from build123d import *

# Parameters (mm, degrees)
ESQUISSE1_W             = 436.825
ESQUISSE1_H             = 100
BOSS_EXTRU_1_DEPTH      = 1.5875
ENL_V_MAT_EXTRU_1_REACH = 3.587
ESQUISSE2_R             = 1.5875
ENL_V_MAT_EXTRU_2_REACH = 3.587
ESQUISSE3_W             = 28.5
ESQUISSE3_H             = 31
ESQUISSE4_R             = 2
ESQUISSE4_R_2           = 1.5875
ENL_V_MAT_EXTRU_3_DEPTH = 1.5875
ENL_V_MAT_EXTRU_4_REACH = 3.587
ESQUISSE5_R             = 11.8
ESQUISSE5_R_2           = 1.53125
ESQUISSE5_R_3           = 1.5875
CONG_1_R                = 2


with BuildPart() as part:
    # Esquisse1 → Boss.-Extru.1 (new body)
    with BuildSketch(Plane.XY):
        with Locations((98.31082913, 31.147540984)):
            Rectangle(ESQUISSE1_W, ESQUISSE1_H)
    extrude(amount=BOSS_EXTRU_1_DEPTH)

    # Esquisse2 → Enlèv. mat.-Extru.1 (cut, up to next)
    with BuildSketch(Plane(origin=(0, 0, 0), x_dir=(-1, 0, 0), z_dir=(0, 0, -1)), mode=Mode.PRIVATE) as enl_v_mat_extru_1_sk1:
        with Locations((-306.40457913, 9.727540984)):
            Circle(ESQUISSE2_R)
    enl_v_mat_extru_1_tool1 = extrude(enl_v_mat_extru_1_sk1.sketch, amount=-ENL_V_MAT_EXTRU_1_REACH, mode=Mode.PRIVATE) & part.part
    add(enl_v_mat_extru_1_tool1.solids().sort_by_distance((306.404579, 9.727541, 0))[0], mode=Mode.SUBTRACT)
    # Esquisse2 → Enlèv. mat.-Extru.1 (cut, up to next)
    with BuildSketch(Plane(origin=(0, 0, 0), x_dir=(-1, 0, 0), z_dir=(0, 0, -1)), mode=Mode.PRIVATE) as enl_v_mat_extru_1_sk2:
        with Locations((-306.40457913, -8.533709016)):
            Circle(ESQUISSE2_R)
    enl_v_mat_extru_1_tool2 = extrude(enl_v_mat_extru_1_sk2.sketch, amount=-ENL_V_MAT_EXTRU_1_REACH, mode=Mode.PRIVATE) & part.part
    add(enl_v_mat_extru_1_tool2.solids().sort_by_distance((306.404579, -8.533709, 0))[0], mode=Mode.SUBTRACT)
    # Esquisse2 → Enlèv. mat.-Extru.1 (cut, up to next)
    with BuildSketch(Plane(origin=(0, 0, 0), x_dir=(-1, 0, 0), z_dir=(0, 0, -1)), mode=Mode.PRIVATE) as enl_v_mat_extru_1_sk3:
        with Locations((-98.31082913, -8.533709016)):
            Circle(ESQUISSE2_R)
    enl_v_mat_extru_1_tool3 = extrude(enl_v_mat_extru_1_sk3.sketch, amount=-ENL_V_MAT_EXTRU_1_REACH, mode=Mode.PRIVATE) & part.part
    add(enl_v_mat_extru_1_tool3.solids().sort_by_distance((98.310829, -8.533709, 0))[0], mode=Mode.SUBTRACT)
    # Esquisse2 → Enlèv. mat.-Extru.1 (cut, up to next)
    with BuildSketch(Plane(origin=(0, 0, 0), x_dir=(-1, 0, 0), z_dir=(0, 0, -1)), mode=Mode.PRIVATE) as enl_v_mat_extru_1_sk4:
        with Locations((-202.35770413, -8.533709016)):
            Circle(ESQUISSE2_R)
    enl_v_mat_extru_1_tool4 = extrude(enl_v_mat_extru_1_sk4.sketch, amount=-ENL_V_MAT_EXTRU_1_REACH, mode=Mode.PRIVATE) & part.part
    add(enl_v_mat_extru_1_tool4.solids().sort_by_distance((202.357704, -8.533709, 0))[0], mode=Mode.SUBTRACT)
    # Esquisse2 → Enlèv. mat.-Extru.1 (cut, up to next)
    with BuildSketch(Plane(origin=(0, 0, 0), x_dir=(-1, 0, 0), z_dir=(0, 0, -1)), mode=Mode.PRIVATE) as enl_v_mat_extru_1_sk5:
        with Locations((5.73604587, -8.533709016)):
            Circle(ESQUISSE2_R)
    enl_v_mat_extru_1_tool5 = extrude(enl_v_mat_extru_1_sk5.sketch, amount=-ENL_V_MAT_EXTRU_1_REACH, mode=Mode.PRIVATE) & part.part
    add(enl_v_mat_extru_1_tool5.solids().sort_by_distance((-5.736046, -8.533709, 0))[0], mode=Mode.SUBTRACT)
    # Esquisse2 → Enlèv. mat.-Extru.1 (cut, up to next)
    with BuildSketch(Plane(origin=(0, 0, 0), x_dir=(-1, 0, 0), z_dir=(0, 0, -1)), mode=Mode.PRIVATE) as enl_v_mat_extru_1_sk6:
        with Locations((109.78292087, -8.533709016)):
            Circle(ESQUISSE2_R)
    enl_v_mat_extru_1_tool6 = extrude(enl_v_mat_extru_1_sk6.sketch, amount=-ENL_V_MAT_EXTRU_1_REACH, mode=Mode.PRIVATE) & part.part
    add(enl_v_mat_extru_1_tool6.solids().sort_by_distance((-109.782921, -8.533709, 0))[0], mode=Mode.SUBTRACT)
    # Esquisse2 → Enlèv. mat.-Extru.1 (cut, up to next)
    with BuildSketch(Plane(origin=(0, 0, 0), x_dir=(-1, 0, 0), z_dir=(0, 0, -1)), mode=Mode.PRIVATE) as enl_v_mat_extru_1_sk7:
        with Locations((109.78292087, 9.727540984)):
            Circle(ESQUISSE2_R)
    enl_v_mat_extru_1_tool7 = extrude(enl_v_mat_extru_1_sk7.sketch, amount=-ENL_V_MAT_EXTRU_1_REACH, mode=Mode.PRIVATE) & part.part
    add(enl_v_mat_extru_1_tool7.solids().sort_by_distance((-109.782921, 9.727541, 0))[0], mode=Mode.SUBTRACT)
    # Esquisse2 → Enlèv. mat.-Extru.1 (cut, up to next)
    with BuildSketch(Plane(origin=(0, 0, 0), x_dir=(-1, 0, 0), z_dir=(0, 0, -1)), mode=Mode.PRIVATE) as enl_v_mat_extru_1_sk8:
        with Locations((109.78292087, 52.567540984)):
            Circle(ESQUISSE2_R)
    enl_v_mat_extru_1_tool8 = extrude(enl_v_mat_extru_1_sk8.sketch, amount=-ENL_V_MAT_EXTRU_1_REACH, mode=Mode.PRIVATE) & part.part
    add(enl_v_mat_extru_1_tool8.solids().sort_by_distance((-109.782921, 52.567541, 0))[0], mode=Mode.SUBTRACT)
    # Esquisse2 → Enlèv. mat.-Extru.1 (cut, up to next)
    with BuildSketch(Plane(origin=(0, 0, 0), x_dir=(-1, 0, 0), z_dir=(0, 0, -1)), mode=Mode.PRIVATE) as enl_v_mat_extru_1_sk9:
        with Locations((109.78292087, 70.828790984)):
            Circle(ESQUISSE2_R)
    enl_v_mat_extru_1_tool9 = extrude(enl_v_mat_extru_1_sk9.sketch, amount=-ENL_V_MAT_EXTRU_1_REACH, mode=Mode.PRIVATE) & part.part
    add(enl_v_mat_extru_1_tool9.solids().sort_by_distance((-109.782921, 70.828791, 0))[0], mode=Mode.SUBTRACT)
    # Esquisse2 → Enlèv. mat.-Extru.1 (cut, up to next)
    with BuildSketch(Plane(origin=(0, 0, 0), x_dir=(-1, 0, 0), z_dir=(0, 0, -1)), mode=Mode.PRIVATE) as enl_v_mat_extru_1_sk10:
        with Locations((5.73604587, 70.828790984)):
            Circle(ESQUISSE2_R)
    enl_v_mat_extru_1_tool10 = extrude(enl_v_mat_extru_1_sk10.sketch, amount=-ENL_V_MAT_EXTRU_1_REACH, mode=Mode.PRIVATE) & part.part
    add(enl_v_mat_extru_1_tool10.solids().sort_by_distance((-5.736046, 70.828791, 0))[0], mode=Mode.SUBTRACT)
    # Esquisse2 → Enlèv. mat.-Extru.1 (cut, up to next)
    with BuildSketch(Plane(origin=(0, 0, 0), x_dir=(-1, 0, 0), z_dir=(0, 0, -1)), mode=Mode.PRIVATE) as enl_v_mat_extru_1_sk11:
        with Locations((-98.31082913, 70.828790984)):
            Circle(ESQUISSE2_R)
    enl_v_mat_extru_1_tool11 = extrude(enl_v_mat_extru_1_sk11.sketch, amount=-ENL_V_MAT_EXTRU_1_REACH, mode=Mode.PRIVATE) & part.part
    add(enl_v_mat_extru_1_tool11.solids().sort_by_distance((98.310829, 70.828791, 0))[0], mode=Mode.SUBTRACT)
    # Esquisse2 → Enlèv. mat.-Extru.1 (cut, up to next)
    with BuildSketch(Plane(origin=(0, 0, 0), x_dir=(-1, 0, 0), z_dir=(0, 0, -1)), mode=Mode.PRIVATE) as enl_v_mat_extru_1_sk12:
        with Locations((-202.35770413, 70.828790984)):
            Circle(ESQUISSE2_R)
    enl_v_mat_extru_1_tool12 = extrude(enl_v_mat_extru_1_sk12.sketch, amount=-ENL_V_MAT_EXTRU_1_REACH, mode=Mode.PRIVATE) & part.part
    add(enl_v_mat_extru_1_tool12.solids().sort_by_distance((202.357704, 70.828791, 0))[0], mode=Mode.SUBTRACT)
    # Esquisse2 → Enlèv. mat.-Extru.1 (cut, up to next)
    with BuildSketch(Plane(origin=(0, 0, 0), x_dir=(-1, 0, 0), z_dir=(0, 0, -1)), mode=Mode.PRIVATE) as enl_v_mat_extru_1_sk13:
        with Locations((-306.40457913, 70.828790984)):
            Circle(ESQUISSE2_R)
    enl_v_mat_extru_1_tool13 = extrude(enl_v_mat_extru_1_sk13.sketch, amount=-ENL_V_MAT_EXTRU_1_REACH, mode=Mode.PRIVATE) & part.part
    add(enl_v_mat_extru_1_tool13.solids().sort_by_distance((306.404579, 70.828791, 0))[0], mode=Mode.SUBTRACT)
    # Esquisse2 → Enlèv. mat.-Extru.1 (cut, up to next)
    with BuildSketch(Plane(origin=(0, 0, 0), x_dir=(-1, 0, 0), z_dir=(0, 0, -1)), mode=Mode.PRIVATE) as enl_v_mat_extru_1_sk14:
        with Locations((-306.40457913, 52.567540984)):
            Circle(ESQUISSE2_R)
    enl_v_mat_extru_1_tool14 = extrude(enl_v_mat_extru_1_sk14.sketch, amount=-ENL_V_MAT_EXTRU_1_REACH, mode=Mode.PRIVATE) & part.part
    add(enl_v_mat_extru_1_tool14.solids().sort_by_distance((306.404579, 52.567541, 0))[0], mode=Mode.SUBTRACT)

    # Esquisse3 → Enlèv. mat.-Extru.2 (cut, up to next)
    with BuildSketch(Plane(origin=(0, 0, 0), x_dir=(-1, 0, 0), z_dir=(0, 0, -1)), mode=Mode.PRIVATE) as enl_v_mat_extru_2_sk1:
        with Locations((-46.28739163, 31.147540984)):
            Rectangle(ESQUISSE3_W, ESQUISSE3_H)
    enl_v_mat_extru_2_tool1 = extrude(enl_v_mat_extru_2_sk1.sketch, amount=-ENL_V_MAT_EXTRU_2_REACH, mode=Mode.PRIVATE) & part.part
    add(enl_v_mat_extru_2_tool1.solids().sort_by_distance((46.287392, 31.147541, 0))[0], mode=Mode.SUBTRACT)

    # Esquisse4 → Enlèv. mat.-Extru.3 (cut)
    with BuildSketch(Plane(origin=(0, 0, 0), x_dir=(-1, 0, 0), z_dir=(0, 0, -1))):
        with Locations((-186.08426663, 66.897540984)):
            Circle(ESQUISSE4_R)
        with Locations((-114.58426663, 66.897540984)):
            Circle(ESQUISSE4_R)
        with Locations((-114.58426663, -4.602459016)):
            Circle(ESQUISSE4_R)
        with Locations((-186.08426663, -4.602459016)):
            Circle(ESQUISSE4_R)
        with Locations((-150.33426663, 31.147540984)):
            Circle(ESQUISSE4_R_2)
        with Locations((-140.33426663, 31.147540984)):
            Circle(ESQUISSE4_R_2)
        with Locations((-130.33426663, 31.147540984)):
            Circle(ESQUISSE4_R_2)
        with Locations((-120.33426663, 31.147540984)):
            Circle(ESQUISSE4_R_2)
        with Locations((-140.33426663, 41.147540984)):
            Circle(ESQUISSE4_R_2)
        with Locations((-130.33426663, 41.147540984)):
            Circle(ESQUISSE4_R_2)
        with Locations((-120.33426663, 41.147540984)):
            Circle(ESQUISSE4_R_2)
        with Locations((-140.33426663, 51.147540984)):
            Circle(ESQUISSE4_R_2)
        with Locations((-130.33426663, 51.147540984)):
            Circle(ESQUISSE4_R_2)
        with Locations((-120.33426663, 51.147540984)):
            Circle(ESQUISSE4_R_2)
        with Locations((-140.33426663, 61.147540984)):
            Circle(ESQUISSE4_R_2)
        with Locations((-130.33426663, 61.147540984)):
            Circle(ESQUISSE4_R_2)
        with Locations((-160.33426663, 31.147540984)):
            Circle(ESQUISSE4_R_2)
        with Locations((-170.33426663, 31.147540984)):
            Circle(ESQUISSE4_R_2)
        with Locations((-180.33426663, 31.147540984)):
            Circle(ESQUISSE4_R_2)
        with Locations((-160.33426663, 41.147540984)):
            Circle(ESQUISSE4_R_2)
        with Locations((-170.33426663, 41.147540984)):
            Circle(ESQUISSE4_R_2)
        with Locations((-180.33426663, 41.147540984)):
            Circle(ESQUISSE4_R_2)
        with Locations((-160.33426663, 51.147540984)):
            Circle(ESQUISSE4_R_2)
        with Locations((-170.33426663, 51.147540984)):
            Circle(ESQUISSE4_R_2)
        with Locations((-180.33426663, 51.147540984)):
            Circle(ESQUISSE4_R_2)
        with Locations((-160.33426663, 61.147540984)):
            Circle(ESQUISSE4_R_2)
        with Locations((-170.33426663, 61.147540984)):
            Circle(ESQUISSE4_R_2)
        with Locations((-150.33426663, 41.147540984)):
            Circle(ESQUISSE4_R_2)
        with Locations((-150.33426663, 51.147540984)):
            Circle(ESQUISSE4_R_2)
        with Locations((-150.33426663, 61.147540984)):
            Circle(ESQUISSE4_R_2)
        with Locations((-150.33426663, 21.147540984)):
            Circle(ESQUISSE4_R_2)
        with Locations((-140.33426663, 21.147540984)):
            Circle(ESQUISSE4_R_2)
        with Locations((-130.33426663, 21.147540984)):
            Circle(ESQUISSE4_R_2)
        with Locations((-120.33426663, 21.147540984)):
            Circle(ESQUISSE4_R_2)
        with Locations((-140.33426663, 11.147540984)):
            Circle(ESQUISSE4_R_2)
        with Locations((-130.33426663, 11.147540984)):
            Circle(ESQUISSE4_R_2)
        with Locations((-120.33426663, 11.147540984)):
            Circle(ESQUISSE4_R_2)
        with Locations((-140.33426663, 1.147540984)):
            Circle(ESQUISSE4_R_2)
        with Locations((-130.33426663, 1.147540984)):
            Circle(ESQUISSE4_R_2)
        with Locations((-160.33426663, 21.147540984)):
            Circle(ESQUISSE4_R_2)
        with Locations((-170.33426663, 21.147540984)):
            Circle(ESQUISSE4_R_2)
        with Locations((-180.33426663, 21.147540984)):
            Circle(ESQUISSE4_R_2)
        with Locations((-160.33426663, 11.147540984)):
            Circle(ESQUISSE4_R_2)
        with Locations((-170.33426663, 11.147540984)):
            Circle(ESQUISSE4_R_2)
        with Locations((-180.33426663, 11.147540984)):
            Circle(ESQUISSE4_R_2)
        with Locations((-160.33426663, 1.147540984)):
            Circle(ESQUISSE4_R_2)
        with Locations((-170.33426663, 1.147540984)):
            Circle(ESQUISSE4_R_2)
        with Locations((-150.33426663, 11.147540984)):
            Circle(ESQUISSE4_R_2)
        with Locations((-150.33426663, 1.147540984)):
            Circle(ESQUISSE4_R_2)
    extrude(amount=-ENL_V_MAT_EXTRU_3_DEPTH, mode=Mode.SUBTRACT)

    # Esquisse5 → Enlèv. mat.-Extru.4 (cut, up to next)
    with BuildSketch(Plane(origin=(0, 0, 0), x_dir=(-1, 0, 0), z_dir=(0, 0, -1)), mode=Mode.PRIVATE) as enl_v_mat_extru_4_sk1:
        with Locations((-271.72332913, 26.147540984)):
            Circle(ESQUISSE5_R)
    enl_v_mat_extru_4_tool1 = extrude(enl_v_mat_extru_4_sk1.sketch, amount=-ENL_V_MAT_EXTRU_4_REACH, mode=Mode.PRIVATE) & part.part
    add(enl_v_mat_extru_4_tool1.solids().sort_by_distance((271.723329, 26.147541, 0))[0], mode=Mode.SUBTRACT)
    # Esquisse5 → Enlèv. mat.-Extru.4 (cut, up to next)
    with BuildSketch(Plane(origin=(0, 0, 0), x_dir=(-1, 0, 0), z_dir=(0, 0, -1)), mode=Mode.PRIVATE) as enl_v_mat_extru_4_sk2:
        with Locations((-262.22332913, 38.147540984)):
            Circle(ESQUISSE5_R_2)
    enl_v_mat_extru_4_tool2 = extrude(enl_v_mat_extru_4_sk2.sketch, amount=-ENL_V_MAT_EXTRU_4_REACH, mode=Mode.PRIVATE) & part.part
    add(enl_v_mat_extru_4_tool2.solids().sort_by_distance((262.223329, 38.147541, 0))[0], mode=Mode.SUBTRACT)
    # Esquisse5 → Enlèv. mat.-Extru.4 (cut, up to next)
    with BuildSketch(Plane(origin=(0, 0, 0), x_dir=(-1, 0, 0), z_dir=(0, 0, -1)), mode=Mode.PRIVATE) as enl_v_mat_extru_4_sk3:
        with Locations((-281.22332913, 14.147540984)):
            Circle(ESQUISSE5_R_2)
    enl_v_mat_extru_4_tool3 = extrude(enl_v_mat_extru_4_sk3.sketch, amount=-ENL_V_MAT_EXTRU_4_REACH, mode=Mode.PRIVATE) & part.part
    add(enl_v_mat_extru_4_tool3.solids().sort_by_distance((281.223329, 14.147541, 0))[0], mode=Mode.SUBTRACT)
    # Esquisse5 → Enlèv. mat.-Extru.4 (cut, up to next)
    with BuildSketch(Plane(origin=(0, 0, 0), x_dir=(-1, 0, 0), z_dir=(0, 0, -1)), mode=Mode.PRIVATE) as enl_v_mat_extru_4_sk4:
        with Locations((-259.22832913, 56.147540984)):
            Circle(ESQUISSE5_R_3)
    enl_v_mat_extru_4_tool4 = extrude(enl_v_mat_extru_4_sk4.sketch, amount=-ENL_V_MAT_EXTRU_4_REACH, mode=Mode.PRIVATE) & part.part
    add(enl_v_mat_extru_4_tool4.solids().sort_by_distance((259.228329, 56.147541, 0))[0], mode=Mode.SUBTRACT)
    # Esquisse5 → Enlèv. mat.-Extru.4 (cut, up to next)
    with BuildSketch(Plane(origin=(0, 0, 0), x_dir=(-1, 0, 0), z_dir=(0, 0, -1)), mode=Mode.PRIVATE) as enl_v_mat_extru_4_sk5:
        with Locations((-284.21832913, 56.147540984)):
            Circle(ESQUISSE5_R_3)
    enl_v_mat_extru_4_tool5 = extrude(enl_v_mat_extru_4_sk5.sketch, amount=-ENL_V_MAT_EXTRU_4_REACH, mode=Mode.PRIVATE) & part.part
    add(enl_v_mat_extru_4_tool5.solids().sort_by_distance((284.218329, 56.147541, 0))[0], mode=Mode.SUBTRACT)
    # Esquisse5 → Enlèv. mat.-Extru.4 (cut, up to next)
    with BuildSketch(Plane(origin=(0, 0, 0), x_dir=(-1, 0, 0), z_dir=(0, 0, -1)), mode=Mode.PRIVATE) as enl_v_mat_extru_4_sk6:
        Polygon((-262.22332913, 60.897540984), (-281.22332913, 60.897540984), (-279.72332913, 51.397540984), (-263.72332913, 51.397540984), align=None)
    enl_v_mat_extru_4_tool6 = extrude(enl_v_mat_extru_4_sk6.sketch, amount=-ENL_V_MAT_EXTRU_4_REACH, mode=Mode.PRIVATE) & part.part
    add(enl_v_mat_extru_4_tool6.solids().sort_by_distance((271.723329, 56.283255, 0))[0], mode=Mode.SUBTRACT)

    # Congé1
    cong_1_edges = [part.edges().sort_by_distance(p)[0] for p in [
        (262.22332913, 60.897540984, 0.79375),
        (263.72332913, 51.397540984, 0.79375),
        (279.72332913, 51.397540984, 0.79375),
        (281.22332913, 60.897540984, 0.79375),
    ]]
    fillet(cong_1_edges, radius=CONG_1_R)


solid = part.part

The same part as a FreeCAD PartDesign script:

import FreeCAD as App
import Part
import Sketcher
from FreeCAD import Vector


def edges_at(feature, points):
    """Names of the edges that pass closest to the given points."""
    edges = feature.Shape.Edges
    near = lambda p: min(range(len(edges)), key=lambda i: edges[i].distToShape(Part.Vertex(*p))[0])
    return sorted({f"Edge{near(p) + 1}" for p in points})

doc = App.newDocument("Part")
body = doc.addObject("PartDesign::Body", "Body")

sketch1 = body.newObject("Sketcher::SketchObject", "Sketch")
sketch1.AttachmentSupport = (doc.getObject("XY_Plane"), [""])
sketch1.MapMode = "FlatFace"
sketch1.addGeometry(Part.LineSegment(Vector(-120, 81, 0), Vector(-120, -19, 0)), False)
sketch1.addGeometry(Part.LineSegment(Vector(-120, -19, 0), Vector(317, -19, 0)), False)
sketch1.addGeometry(Part.LineSegment(Vector(317, -19, 0), Vector(317, 81, 0)), False)
sketch1.addGeometry(Part.LineSegment(Vector(317, 81, 0), Vector(-120, 81, 0)), False)
sketch1.addConstraint(Sketcher.Constraint("Coincident", 0, 2, 1, 1))
sketch1.addConstraint(Sketcher.Constraint("Coincident", 1, 2, 2, 1))
sketch1.addConstraint(Sketcher.Constraint("Coincident", 2, 2, 3, 1))
sketch1.addConstraint(Sketcher.Constraint("Coincident", 3, 2, 0, 1))
sketch1.addConstraint(Sketcher.Constraint("Vertical", 0))
sketch1.addConstraint(Sketcher.Constraint("Horizontal", 1))
sketch1.addConstraint(Sketcher.Constraint("Vertical", 2))
sketch1.addConstraint(Sketcher.Constraint("Horizontal", 3))
sketch1.addConstraint(Sketcher.Constraint("DistanceY", 0, 2, 0, 1, 100.0))
sketch1.addConstraint(Sketcher.Constraint("DistanceX", 1, 1, 1, 2, 436.825))
sketch1.addConstraint(Sketcher.Constraint("DistanceX", 0, 2, -1, 1, 120.101671))
sketch1.addConstraint(Sketcher.Constraint("DistanceY", 0, 2, -1, 1, 18.852459))
pad1 = body.newObject("PartDesign::Pad", "Pad")
pad1.Profile = sketch1
pad1.Length = 1.5875

sketch2 = body.newObject("Sketcher::SketchObject", "Sketch001")
sketch2.AttachmentSupport = (doc.getObject("XY_Plane"), [""])
sketch2.MapMode = "FlatFace"
sketch2.addGeometry(Part.Circle(Vector(306.4, 9.7, 0), Vector(0, 0, 1), 1.6), False)
sketch2.addConstraint(Sketcher.Constraint("Diameter", 0, 3.175))
sketch2.addConstraint(Sketcher.Constraint("DistanceX", -1, 1, 0, 3, 306.404579))
sketch2.addConstraint(Sketcher.Constraint("DistanceY", -1, 1, 0, 3, 9.727541))
pocket1 = body.newObject("PartDesign::Pocket", "Pocket")
pocket1.Profile = sketch2
pocket1.Type = "UpToFirst"
pocket1.Reversed = True

sketch3 = body.newObject("Sketcher::SketchObject", "Sketch002")
sketch3.AttachmentSupport = (doc.getObject("XY_Plane"), [""])
sketch3.MapMode = "FlatFace"
sketch3.addGeometry(Part.Circle(Vector(306.4, -8.5, 0), Vector(0, 0, 1), 1.6), False)
sketch3.addConstraint(Sketcher.Constraint("Diameter", 0, 3.175))
sketch3.addConstraint(Sketcher.Constraint("DistanceX", -1, 1, 0, 3, 306.404579))
sketch3.addConstraint(Sketcher.Constraint("DistanceY", 0, 3, -1, 1, 8.533709))
pocket2 = body.newObject("PartDesign::Pocket", "Pocket001")
pocket2.Profile = sketch3
pocket2.Type = "UpToFirst"
pocket2.Reversed = True

sketch4 = body.newObject("Sketcher::SketchObject", "Sketch003")
sketch4.AttachmentSupport = (doc.getObject("XY_Plane"), [""])
sketch4.MapMode = "FlatFace"
sketch4.addGeometry(Part.Circle(Vector(98.3, -8.5, 0), Vector(0, 0, 1), 1.6), False)
sketch4.addConstraint(Sketcher.Constraint("Diameter", 0, 3.175))
sketch4.addConstraint(Sketcher.Constraint("DistanceX", -1, 1, 0, 3, 98.310829))
sketch4.addConstraint(Sketcher.Constraint("DistanceY", 0, 3, -1, 1, 8.533709))
pocket3 = body.newObject("PartDesign::Pocket", "Pocket002")
pocket3.Profile = sketch4
pocket3.Type = "UpToFirst"
pocket3.Reversed = True

sketch5 = body.newObject("Sketcher::SketchObject", "Sketch004")
sketch5.AttachmentSupport = (doc.getObject("XY_Plane"), [""])
sketch5.MapMode = "FlatFace"
sketch5.addGeometry(Part.Circle(Vector(202.4, -8.5, 0), Vector(0, 0, 1), 1.6), False)
sketch5.addConstraint(Sketcher.Constraint("Diameter", 0, 3.175))
sketch5.addConstraint(Sketcher.Constraint("DistanceY", 0, 3, -1, 1, 8.533709))
sketch5.addConstraint(Sketcher.Constraint("DistanceX", -1, 1, 0, 3, 202.357704))
pocket4 = body.newObject("PartDesign::Pocket", "Pocket003")
pocket4.Profile = sketch5
pocket4.Type = "UpToFirst"
pocket4.Reversed = True

sketch6 = body.newObject("Sketcher::SketchObject", "Sketch005")
sketch6.AttachmentSupport = (doc.getObject("XY_Plane"), [""])
sketch6.MapMode = "FlatFace"
sketch6.addGeometry(Part.Circle(Vector(-5.7, -8.5, 0), Vector(0, 0, 1), 1.6), False)
sketch6.addConstraint(Sketcher.Constraint("Diameter", 0, 3.175))
sketch6.addConstraint(Sketcher.Constraint("DistanceY", 0, 3, -1, 1, 8.533709))
sketch6.addConstraint(Sketcher.Constraint("DistanceX", 0, 3, -1, 1, 5.736046))
pocket5 = body.newObject("PartDesign::Pocket", "Pocket004")
pocket5.Profile = sketch6
pocket5.Type = "UpToFirst"
pocket5.Reversed = True

sketch7 = body.newObject("Sketcher::SketchObject", "Sketch006")
sketch7.AttachmentSupport = (doc.getObject("XY_Plane"), [""])
sketch7.MapMode = "FlatFace"
sketch7.addGeometry(Part.Circle(Vector(-109.8, -8.5, 0), Vector(0, 0, 1), 1.6), False)
sketch7.addConstraint(Sketcher.Constraint("Diameter", 0, 3.175))
sketch7.addConstraint(Sketcher.Constraint("DistanceX", 0, 3, -1, 1, 109.782921))
sketch7.addConstraint(Sketcher.Constraint("DistanceY", 0, 3, -1, 1, 8.533709))
pocket6 = body.newObject("PartDesign::Pocket", "Pocket005")
pocket6.Profile = sketch7
pocket6.Type = "UpToFirst"
pocket6.Reversed = True

sketch8 = body.newObject("Sketcher::SketchObject", "Sketch007")
sketch8.AttachmentSupport = (doc.getObject("XY_Plane"), [""])
sketch8.MapMode = "FlatFace"
sketch8.addGeometry(Part.Circle(Vector(-109.8, 9.7, 0), Vector(0, 0, 1), 1.6), False)
sketch8.addConstraint(Sketcher.Constraint("Diameter", 0, 3.175))
sketch8.addConstraint(Sketcher.Constraint("DistanceX", 0, 3, -1, 1, 109.782921))
sketch8.addConstraint(Sketcher.Constraint("DistanceY", -1, 1, 0, 3, 9.727541))
pocket7 = body.newObject("PartDesign::Pocket", "Pocket006")
pocket7.Profile = sketch8
pocket7.Type = "UpToFirst"
pocket7.Reversed = True

sketch9 = body.newObject("Sketcher::SketchObject", "Sketch008")
sketch9.AttachmentSupport = (doc.getObject("XY_Plane"), [""])
sketch9.MapMode = "FlatFace"
sketch9.addGeometry(Part.Circle(Vector(-109.8, 52.6, 0), Vector(0, 0, 1), 1.6), False)
sketch9.addConstraint(Sketcher.Constraint("Diameter", 0, 3.175))
sketch9.addConstraint(Sketcher.Constraint("DistanceX", 0, 3, -1, 1, 109.782921))
sketch9.addConstraint(Sketcher.Constraint("DistanceY", -1, 1, 0, 3, 52.567541))
pocket8 = body.newObject("PartDesign::Pocket", "Pocket007")
pocket8.Profile = sketch9
pocket8.Type = "UpToFirst"
pocket8.Reversed = True

sketch10 = body.newObject("Sketcher::SketchObject", "Sketch009")
sketch10.AttachmentSupport = (doc.getObject("XY_Plane"), [""])
sketch10.MapMode = "FlatFace"
sketch10.addGeometry(Part.Circle(Vector(-109.8, 70.8, 0), Vector(0, 0, 1), 1.6), False)
sketch10.addConstraint(Sketcher.Constraint("Diameter", 0, 3.175))
sketch10.addConstraint(Sketcher.Constraint("DistanceX", 0, 3, -1, 1, 109.782921))
sketch10.addConstraint(Sketcher.Constraint("DistanceY", -1, 1, 0, 3, 70.828791))
pocket9 = body.newObject("PartDesign::Pocket", "Pocket008")
pocket9.Profile = sketch10
pocket9.Type = "UpToFirst"
pocket9.Reversed = True

sketch11 = body.newObject("Sketcher::SketchObject", "Sketch010")
sketch11.AttachmentSupport = (doc.getObject("XY_Plane"), [""])
sketch11.MapMode = "FlatFace"
sketch11.addGeometry(Part.Circle(Vector(-5.7, 70.8, 0), Vector(0, 0, 1), 1.6), False)
sketch11.addConstraint(Sketcher.Constraint("Diameter", 0, 3.175))
sketch11.addConstraint(Sketcher.Constraint("DistanceY", -1, 1, 0, 3, 70.828791))
sketch11.addConstraint(Sketcher.Constraint("DistanceX", 0, 3, -1, 1, 5.736046))
pocket10 = body.newObject("PartDesign::Pocket", "Pocket009")
pocket10.Profile = sketch11
pocket10.Type = "UpToFirst"
pocket10.Reversed = True

sketch12 = body.newObject("Sketcher::SketchObject", "Sketch011")
sketch12.AttachmentSupport = (doc.getObject("XY_Plane"), [""])
sketch12.MapMode = "FlatFace"
sketch12.addGeometry(Part.Circle(Vector(98.3, 70.8, 0), Vector(0, 0, 1), 1.6), False)
sketch12.addConstraint(Sketcher.Constraint("Diameter", 0, 3.175))
sketch12.addConstraint(Sketcher.Constraint("DistanceX", -1, 1, 0, 3, 98.310829))
sketch12.addConstraint(Sketcher.Constraint("DistanceY", -1, 1, 0, 3, 70.828791))
pocket11 = body.newObject("PartDesign::Pocket", "Pocket010")
pocket11.Profile = sketch12
pocket11.Type = "UpToFirst"
pocket11.Reversed = True

sketch13 = body.newObject("Sketcher::SketchObject", "Sketch012")
sketch13.AttachmentSupport = (doc.getObject("XY_Plane"), [""])
sketch13.MapMode = "FlatFace"
sketch13.addGeometry(Part.Circle(Vector(202.4, 70.8, 0), Vector(0, 0, 1), 1.6), False)
sketch13.addConstraint(Sketcher.Constraint("Diameter", 0, 3.175))
sketch13.addConstraint(Sketcher.Constraint("DistanceY", -1, 1, 0, 3, 70.828791))
sketch13.addConstraint(Sketcher.Constraint("DistanceX", -1, 1, 0, 3, 202.357704))
pocket12 = body.newObject("PartDesign::Pocket", "Pocket011")
pocket12.Profile = sketch13
pocket12.Type = "UpToFirst"
pocket12.Reversed = True

sketch14 = body.newObject("Sketcher::SketchObject", "Sketch013")
sketch14.AttachmentSupport = (doc.getObject("XY_Plane"), [""])
sketch14.MapMode = "FlatFace"
sketch14.addGeometry(Part.Circle(Vector(306.4, 70.8, 0), Vector(0, 0, 1), 1.6), False)
sketch14.addConstraint(Sketcher.Constraint("Diameter", 0, 3.175))
sketch14.addConstraint(Sketcher.Constraint("DistanceX", -1, 1, 0, 3, 306.404579))
sketch14.addConstraint(Sketcher.Constraint("DistanceY", -1, 1, 0, 3, 70.828791))
pocket13 = body.newObject("PartDesign::Pocket", "Pocket012")
pocket13.Profile = sketch14
pocket13.Type = "UpToFirst"
pocket13.Reversed = True

sketch15 = body.newObject("Sketcher::SketchObject", "Sketch014")
sketch15.AttachmentSupport = (doc.getObject("XY_Plane"), [""])
sketch15.MapMode = "FlatFace"
sketch15.addGeometry(Part.Circle(Vector(306.4, 52.6, 0), Vector(0, 0, 1), 1.6), False)
sketch15.addConstraint(Sketcher.Constraint("Diameter", 0, 3.175))
sketch15.addConstraint(Sketcher.Constraint("DistanceX", -1, 1, 0, 3, 306.404579))
sketch15.addConstraint(Sketcher.Constraint("DistanceY", -1, 1, 0, 3, 52.567541))
pocket14 = body.newObject("PartDesign::Pocket", "Pocket013")
pocket14.Profile = sketch15
pocket14.Type = "UpToFirst"
pocket14.Reversed = True

sketch16 = body.newObject("Sketcher::SketchObject", "Sketch015")
sketch16.AttachmentSupport = (doc.getObject("XY_Plane"), [""])
sketch16.MapMode = "FlatFace"
sketch16.addGeometry(Part.LineSegment(Vector(61, 47, 0), Vector(61, 16, 0)), False)
sketch16.addGeometry(Part.LineSegment(Vector(61, 16, 0), Vector(32, 16, 0)), False)
sketch16.addGeometry(Part.LineSegment(Vector(32, 16, 0), Vector(32, 47, 0)), False)
sketch16.addGeometry(Part.LineSegment(Vector(32, 47, 0), Vector(61, 47, 0)), False)
sketch16.addConstraint(Sketcher.Constraint("Coincident", 0, 2, 1, 1))
sketch16.addConstraint(Sketcher.Constraint("Coincident", 1, 2, 2, 1))
sketch16.addConstraint(Sketcher.Constraint("Coincident", 2, 2, 3, 1))
sketch16.addConstraint(Sketcher.Constraint("Coincident", 3, 2, 0, 1))
sketch16.addConstraint(Sketcher.Constraint("Vertical", 0))
sketch16.addConstraint(Sketcher.Constraint("Horizontal", 1))
sketch16.addConstraint(Sketcher.Constraint("Vertical", 2))
sketch16.addConstraint(Sketcher.Constraint("Horizontal", 3))
sketch16.addConstraint(Sketcher.Constraint("DistanceY", 0, 2, 0, 1, 31.0))
sketch16.addConstraint(Sketcher.Constraint("DistanceX", 1, 2, 1, 1, 28.5))
sketch16.addConstraint(Sketcher.Constraint("DistanceX", -1, 1, 0, 2, 60.537392))
sketch16.addConstraint(Sketcher.Constraint("DistanceY", -1, 1, 0, 2, 15.647541))
pocket15 = body.newObject("PartDesign::Pocket", "Pocket014")
pocket15.Profile = sketch16
pocket15.Type = "UpToFirst"
pocket15.Reversed = True

sketch17 = body.newObject("Sketcher::SketchObject", "Sketch016")
sketch17.AttachmentSupport = (doc.getObject("XY_Plane"), [""])
sketch17.MapMode = "FlatFace"
sketch17.addGeometry(Part.Circle(Vector(186.1, 66.9, 0), Vector(0, 0, 1), 2), False)
sketch17.addGeometry(Part.Circle(Vector(114.6, 66.9, 0), Vector(0, 0, 1), 2), False)
sketch17.addGeometry(Part.Circle(Vector(114.6, -4.6, 0), Vector(0, 0, 1), 2), False)
sketch17.addGeometry(Part.Circle(Vector(186.1, -4.6, 0), Vector(0, 0, 1), 2), False)
sketch17.addGeometry(Part.Circle(Vector(150.3, 31.1, 0), Vector(0, 0, 1), 1.6), False)
sketch17.addGeometry(Part.Circle(Vector(140.3, 31.1, 0), Vector(0, 0, 1), 1.6), False)
sketch17.addGeometry(Part.Circle(Vector(130.3, 31.1, 0), Vector(0, 0, 1), 1.6), False)
sketch17.addGeometry(Part.Circle(Vector(120.3, 31.1, 0), Vector(0, 0, 1), 1.6), False)
sketch17.addGeometry(Part.Circle(Vector(140.3, 41.1, 0), Vector(0, 0, 1), 1.6), False)
sketch17.addGeometry(Part.Circle(Vector(130.3, 41.1, 0), Vector(0, 0, 1), 1.6), False)
sketch17.addGeometry(Part.Circle(Vector(120.3, 41.1, 0), Vector(0, 0, 1), 1.6), False)
sketch17.addGeometry(Part.Circle(Vector(140.3, 51.1, 0), Vector(0, 0, 1), 1.6), False)
sketch17.addGeometry(Part.Circle(Vector(130.3, 51.1, 0), Vector(0, 0, 1), 1.6), False)
sketch17.addGeometry(Part.Circle(Vector(120.3, 51.1, 0), Vector(0, 0, 1), 1.6), False)
sketch17.addGeometry(Part.Circle(Vector(140.3, 61.1, 0), Vector(0, 0, 1), 1.6), False)
sketch17.addGeometry(Part.Circle(Vector(130.3, 61.1, 0), Vector(0, 0, 1), 1.6), False)
sketch17.addGeometry(Part.Circle(Vector(160.3, 31.1, 0), Vector(0, 0, 1), 1.6), False)
sketch17.addGeometry(Part.Circle(Vector(170.3, 31.1, 0), Vector(0, 0, 1), 1.6), False)
sketch17.addGeometry(Part.Circle(Vector(180.3, 31.1, 0), Vector(0, 0, 1), 1.6), False)
sketch17.addGeometry(Part.Circle(Vector(160.3, 41.1, 0), Vector(0, 0, 1), 1.6), False)
sketch17.addGeometry(Part.Circle(Vector(170.3, 41.1, 0), Vector(0, 0, 1), 1.6), False)
sketch17.addGeometry(Part.Circle(Vector(180.3, 41.1, 0), Vector(0, 0, 1), 1.6), False)
sketch17.addGeometry(Part.Circle(Vector(160.3, 51.1, 0), Vector(0, 0, 1), 1.6), False)
sketch17.addGeometry(Part.Circle(Vector(170.3, 51.1, 0), Vector(0, 0, 1), 1.6), False)
sketch17.addGeometry(Part.Circle(Vector(180.3, 51.1, 0), Vector(0, 0, 1), 1.6), False)
sketch17.addGeometry(Part.Circle(Vector(160.3, 61.1, 0), Vector(0, 0, 1), 1.6), False)
sketch17.addGeometry(Part.Circle(Vector(170.3, 61.1, 0), Vector(0, 0, 1), 1.6), False)
sketch17.addGeometry(Part.Circle(Vector(150.3, 41.1, 0), Vector(0, 0, 1), 1.6), False)
sketch17.addGeometry(Part.Circle(Vector(150.3, 51.1, 0), Vector(0, 0, 1), 1.6), False)
sketch17.addGeometry(Part.Circle(Vector(150.3, 61.1, 0), Vector(0, 0, 1), 1.6), False)
sketch17.addGeometry(Part.Circle(Vector(150.3, 21.1, 0), Vector(0, 0, 1), 1.6), False)
sketch17.addGeometry(Part.Circle(Vector(140.3, 21.1, 0), Vector(0, 0, 1), 1.6), False)
sketch17.addGeometry(Part.Circle(Vector(130.3, 21.1, 0), Vector(0, 0, 1), 1.6), False)
sketch17.addGeometry(Part.Circle(Vector(120.3, 21.1, 0), Vector(0, 0, 1), 1.6), False)
sketch17.addGeometry(Part.Circle(Vector(140.3, 11.1, 0), Vector(0, 0, 1), 1.6), False)
sketch17.addGeometry(Part.Circle(Vector(130.3, 11.1, 0), Vector(0, 0, 1), 1.6), False)
sketch17.addGeometry(Part.Circle(Vector(120.3, 11.1, 0), Vector(0, 0, 1), 1.6), False)
sketch17.addGeometry(Part.Circle(Vector(140.3, 1.1, 0), Vector(0, 0, 1), 1.6), False)
sketch17.addGeometry(Part.Circle(Vector(130.3, 1.1, 0), Vector(0, 0, 1), 1.6), False)
sketch17.addGeometry(Part.Circle(Vector(160.3, 21.1, 0), Vector(0, 0, 1), 1.6), False)
sketch17.addGeometry(Part.Circle(Vector(170.3, 21.1, 0), Vector(0, 0, 1), 1.6), False)
sketch17.addGeometry(Part.Circle(Vector(180.3, 21.1, 0), Vector(0, 0, 1), 1.6), False)
sketch17.addGeometry(Part.Circle(Vector(160.3, 11.1, 0), Vector(0, 0, 1), 1.6), False)
sketch17.addGeometry(Part.Circle(Vector(170.3, 11.1, 0), Vector(0, 0, 1), 1.6), False)
sketch17.addGeometry(Part.Circle(Vector(180.3, 11.1, 0), Vector(0, 0, 1), 1.6), False)
sketch17.addGeometry(Part.Circle(Vector(160.3, 1.1, 0), Vector(0, 0, 1), 1.6), False)
sketch17.addGeometry(Part.Circle(Vector(170.3, 1.1, 0), Vector(0, 0, 1), 1.6), False)
sketch17.addGeometry(Part.Circle(Vector(150.3, 11.1, 0), Vector(0, 0, 1), 1.6), False)
sketch17.addGeometry(Part.Circle(Vector(150.3, 1.1, 0), Vector(0, 0, 1), 1.6), False)
sketch17.addConstraint(Sketcher.Constraint("Equal", 0, 1))
sketch17.addConstraint(Sketcher.Constraint("Equal", 1, 2))
sketch17.addConstraint(Sketcher.Constraint("Equal", 2, 3))
sketch17.addConstraint(Sketcher.Constraint("Equal", 4, 5))
sketch17.addConstraint(Sketcher.Constraint("Equal", 5, 6))
sketch17.addConstraint(Sketcher.Constraint("Equal", 6, 7))
sketch17.addConstraint(Sketcher.Constraint("Equal", 7, 8))
sketch17.addConstraint(Sketcher.Constraint("Equal", 8, 9))
sketch17.addConstraint(Sketcher.Constraint("Equal", 9, 10))
sketch17.addConstraint(Sketcher.Constraint("Equal", 10, 11))
sketch17.addConstraint(Sketcher.Constraint("Equal", 11, 12))
sketch17.addConstraint(Sketcher.Constraint("Equal", 12, 13))
sketch17.addConstraint(Sketcher.Constraint("Equal", 13, 14))
sketch17.addConstraint(Sketcher.Constraint("Equal", 14, 15))
sketch17.addConstraint(Sketcher.Constraint("Equal", 15, 16))
sketch17.addConstraint(Sketcher.Constraint("Equal", 16, 17))
sketch17.addConstraint(Sketcher.Constraint("Equal", 17, 18))
sketch17.addConstraint(Sketcher.Constraint("Equal", 18, 19))
sketch17.addConstraint(Sketcher.Constraint("Equal", 19, 20))
sketch17.addConstraint(Sketcher.Constraint("Equal", 20, 21))
sketch17.addConstraint(Sketcher.Constraint("Equal", 21, 22))
sketch17.addConstraint(Sketcher.Constraint("Equal", 22, 23))
sketch17.addConstraint(Sketcher.Constraint("Equal", 23, 24))
sketch17.addConstraint(Sketcher.Constraint("Equal", 24, 25))
sketch17.addConstraint(Sketcher.Constraint("Equal", 25, 26))
sketch17.addConstraint(Sketcher.Constraint("Equal", 26, 27))
sketch17.addConstraint(Sketcher.Constraint("Equal", 27, 28))
sketch17.addConstraint(Sketcher.Constraint("Equal", 28, 29))
sketch17.addConstraint(Sketcher.Constraint("Equal", 29, 30))
sketch17.addConstraint(Sketcher.Constraint("Equal", 30, 31))
sketch17.addConstraint(Sketcher.Constraint("Equal", 31, 32))
sketch17.addConstraint(Sketcher.Constraint("Equal", 32, 33))
sketch17.addConstraint(Sketcher.Constraint("Equal", 33, 34))
sketch17.addConstraint(Sketcher.Constraint("Equal", 34, 35))
sketch17.addConstraint(Sketcher.Constraint("Equal", 35, 36))
sketch17.addConstraint(Sketcher.Constraint("Equal", 36, 37))
sketch17.addConstraint(Sketcher.Constraint("Equal", 37, 38))
sketch17.addConstraint(Sketcher.Constraint("Equal", 38, 39))
sketch17.addConstraint(Sketcher.Constraint("Equal", 39, 40))
sketch17.addConstraint(Sketcher.Constraint("Equal", 40, 41))
sketch17.addConstraint(Sketcher.Constraint("Equal", 41, 42))
sketch17.addConstraint(Sketcher.Constraint("Equal", 42, 43))
sketch17.addConstraint(Sketcher.Constraint("Equal", 43, 44))
sketch17.addConstraint(Sketcher.Constraint("Equal", 44, 45))
sketch17.addConstraint(Sketcher.Constraint("Equal", 45, 46))
sketch17.addConstraint(Sketcher.Constraint("Equal", 46, 47))
sketch17.addConstraint(Sketcher.Constraint("Equal", 47, 48))
sketch17.addConstraint(Sketcher.Constraint("Horizontal", 0, 3, 1, 3))
sketch17.addConstraint(Sketcher.Constraint("Horizontal", 2, 3, 3, 3))
sketch17.addConstraint(Sketcher.Constraint("Horizontal", 4, 3, 5, 3))
sketch17.addConstraint(Sketcher.Constraint("Horizontal", 5, 3, 6, 3))
sketch17.addConstraint(Sketcher.Constraint("Horizontal", 6, 3, 7, 3))
sketch17.addConstraint(Sketcher.Constraint("Horizontal", 8, 3, 9, 3))
sketch17.addConstraint(Sketcher.Constraint("Horizontal", 9, 3, 10, 3))
sketch17.addConstraint(Sketcher.Constraint("Horizontal", 11, 3, 12, 3))
sketch17.addConstraint(Sketcher.Constraint("Horizontal", 12, 3, 13, 3))
sketch17.addConstraint(Sketcher.Constraint("Horizontal", 14, 3, 15, 3))
sketch17.addConstraint(Sketcher.Constraint("Horizontal", 7, 3, 16, 3))
sketch17.addConstraint(Sketcher.Constraint("Horizontal", 16, 3, 17, 3))
sketch17.addConstraint(Sketcher.Constraint("Horizontal", 17, 3, 18, 3))
sketch17.addConstraint(Sketcher.Constraint("Horizontal", 10, 3, 19, 3))
sketch17.addConstraint(Sketcher.Constraint("Horizontal", 19, 3, 20, 3))
sketch17.addConstraint(Sketcher.Constraint("Horizontal", 20, 3, 21, 3))
sketch17.addConstraint(Sketcher.Constraint("Horizontal", 13, 3, 22, 3))
sketch17.addConstraint(Sketcher.Constraint("Horizontal", 22, 3, 23, 3))
sketch17.addConstraint(Sketcher.Constraint("Horizontal", 23, 3, 24, 3))
sketch17.addConstraint(Sketcher.Constraint("Horizontal", 15, 3, 25, 3))
sketch17.addConstraint(Sketcher.Constraint("Horizontal", 25, 3, 26, 3))
sketch17.addConstraint(Sketcher.Constraint("Horizontal", 21, 3, 27, 3))
sketch17.addConstraint(Sketcher.Constraint("Horizontal", 24, 3, 28, 3))
sketch17.addConstraint(Sketcher.Constraint("Horizontal", 26, 3, 29, 3))
sketch17.addConstraint(Sketcher.Constraint("Horizontal", 30, 3, 31, 3))
sketch17.addConstraint(Sketcher.Constraint("Horizontal", 31, 3, 32, 3))
sketch17.addConstraint(Sketcher.Constraint("Horizontal", 32, 3, 33, 3))
sketch17.addConstraint(Sketcher.Constraint("Horizontal", 34, 3, 35, 3))
sketch17.addConstraint(Sketcher.Constraint("Horizontal", 35, 3, 36, 3))
sketch17.addConstraint(Sketcher.Constraint("Horizontal", 37, 3, 38, 3))
sketch17.addConstraint(Sketcher.Constraint("Horizontal", 33, 3, 39, 3))
sketch17.addConstraint(Sketcher.Constraint("Horizontal", 39, 3, 40, 3))
sketch17.addConstraint(Sketcher.Constraint("Horizontal", 40, 3, 41, 3))
sketch17.addConstraint(Sketcher.Constraint("Horizontal", 36, 3, 42, 3))
sketch17.addConstraint(Sketcher.Constraint("Horizontal", 42, 3, 43, 3))
sketch17.addConstraint(Sketcher.Constraint("Horizontal", 43, 3, 44, 3))
sketch17.addConstraint(Sketcher.Constraint("Horizontal", 38, 3, 45, 3))
sketch17.addConstraint(Sketcher.Constraint("Horizontal", 45, 3, 46, 3))
sketch17.addConstraint(Sketcher.Constraint("Horizontal", 44, 3, 47, 3))
sketch17.addConstraint(Sketcher.Constraint("Horizontal", 46, 3, 48, 3))
sketch17.addConstraint(Sketcher.Constraint("Vertical", 1, 3, 2, 3))
sketch17.addConstraint(Sketcher.Constraint("Vertical", 0, 3, 3, 3))
sketch17.addConstraint(Sketcher.Constraint("Vertical", 5, 3, 8, 3))
sketch17.addConstraint(Sketcher.Constraint("Vertical", 6, 3, 9, 3))
sketch17.addConstraint(Sketcher.Constraint("Vertical", 7, 3, 10, 3))
sketch17.addConstraint(Sketcher.Constraint("Vertical", 8, 3, 11, 3))
sketch17.addConstraint(Sketcher.Constraint("Vertical", 9, 3, 12, 3))
sketch17.addConstraint(Sketcher.Constraint("Vertical", 10, 3, 13, 3))
sketch17.addConstraint(Sketcher.Constraint("Vertical", 11, 3, 14, 3))
sketch17.addConstraint(Sketcher.Constraint("Vertical", 12, 3, 15, 3))
sketch17.addConstraint(Sketcher.Constraint("Vertical", 16, 3, 19, 3))
sketch17.addConstraint(Sketcher.Constraint("Vertical", 17, 3, 20, 3))
sketch17.addConstraint(Sketcher.Constraint("Vertical", 18, 3, 21, 3))
sketch17.addConstraint(Sketcher.Constraint("Vertical", 19, 3, 22, 3))
sketch17.addConstraint(Sketcher.Constraint("Vertical", 20, 3, 23, 3))
sketch17.addConstraint(Sketcher.Constraint("Vertical", 21, 3, 24, 3))
sketch17.addConstraint(Sketcher.Constraint("Vertical", 22, 3, 25, 3))
sketch17.addConstraint(Sketcher.Constraint("Vertical", 23, 3, 26, 3))
sketch17.addConstraint(Sketcher.Constraint("Vertical", 4, 3, 27, 3))
sketch17.addConstraint(Sketcher.Constraint("Vertical", 27, 3, 28, 3))
sketch17.addConstraint(Sketcher.Constraint("Vertical", 28, 3, 29, 3))
sketch17.addConstraint(Sketcher.Constraint("Vertical", 29, 3, 30, 3))
sketch17.addConstraint(Sketcher.Constraint("Vertical", 14, 3, 31, 3))
sketch17.addConstraint(Sketcher.Constraint("Vertical", 15, 3, 32, 3))
sketch17.addConstraint(Sketcher.Constraint("Vertical", 13, 3, 33, 3))
sketch17.addConstraint(Sketcher.Constraint("Vertical", 31, 3, 34, 3))
sketch17.addConstraint(Sketcher.Constraint("Vertical", 32, 3, 35, 3))
sketch17.addConstraint(Sketcher.Constraint("Vertical", 33, 3, 36, 3))
sketch17.addConstraint(Sketcher.Constraint("Vertical", 34, 3, 37, 3))
sketch17.addConstraint(Sketcher.Constraint("Vertical", 35, 3, 38, 3))
sketch17.addConstraint(Sketcher.Constraint("Vertical", 25, 3, 39, 3))
sketch17.addConstraint(Sketcher.Constraint("Vertical", 26, 3, 40, 3))
sketch17.addConstraint(Sketcher.Constraint("Vertical", 24, 3, 41, 3))
sketch17.addConstraint(Sketcher.Constraint("Vertical", 39, 3, 42, 3))
sketch17.addConstraint(Sketcher.Constraint("Vertical", 40, 3, 43, 3))
sketch17.addConstraint(Sketcher.Constraint("Vertical", 41, 3, 44, 3))
sketch17.addConstraint(Sketcher.Constraint("Vertical", 42, 3, 45, 3))
sketch17.addConstraint(Sketcher.Constraint("Vertical", 43, 3, 46, 3))
sketch17.addConstraint(Sketcher.Constraint("Vertical", 30, 3, 47, 3))
sketch17.addConstraint(Sketcher.Constraint("Vertical", 47, 3, 48, 3))
sketch17.addConstraint(Sketcher.Constraint("Diameter", 0, 4.0))
sketch17.addConstraint(Sketcher.Constraint("Diameter", 4, 3.175))
sketch17.addConstraint(Sketcher.Constraint("DistanceX", 5, 3, 4, 3, 10.0))
sketch17.addConstraint(Sketcher.Constraint("DistanceX", 6, 3, 5, 3, 10.0))
sketch17.addConstraint(Sketcher.Constraint("DistanceX", 7, 3, 6, 3, 10.0))
sketch17.addConstraint(Sketcher.Constraint("DistanceY", 5, 3, 8, 3, 10.0))
sketch17.addConstraint(Sketcher.Constraint("DistanceY", 8, 3, 11, 3, 10.0))
sketch17.addConstraint(Sketcher.Constraint("DistanceY", 11, 3, 14, 3, 10.0))
sketch17.addConstraint(Sketcher.Constraint("DistanceX", 4, 3, 16, 3, 10.0))
sketch17.addConstraint(Sketcher.Constraint("DistanceX", 16, 3, 17, 3, 10.0))
sketch17.addConstraint(Sketcher.Constraint("DistanceX", 17, 3, 18, 3, 10.0))
sketch17.addConstraint(Sketcher.Constraint("DistanceY", 30, 3, 4, 3, 10.0))
sketch17.addConstraint(Sketcher.Constraint("DistanceY", 34, 3, 31, 3, 10.0))
sketch17.addConstraint(Sketcher.Constraint("DistanceY", 37, 3, 34, 3, 10.0))
sketch17.addConstraint(Sketcher.Constraint("DistanceX", 1, 3, 0, 3, 71.5))
sketch17.addConstraint(Sketcher.Constraint("DistanceY", 2, 3, 1, 3, 71.5))
sketch17.addConstraint(Sketcher.Constraint("DistanceX", 4, 3, 0, 3, 35.75))
sketch17.addConstraint(Sketcher.Constraint("DistanceY", 4, 3, 0, 3, 35.75))
sketch17.addConstraint(Sketcher.Constraint("DistanceY", -1, 1, 0, 3, 66.897541))
sketch17.addConstraint(Sketcher.Constraint("DistanceX", -1, 1, 0, 3, 186.084267))
pocket16 = body.newObject("PartDesign::Pocket", "Pocket015")
pocket16.Profile = sketch17
pocket16.Length = 1.5875
pocket16.Reversed = True

sketch18 = body.newObject("Sketcher::SketchObject", "Sketch017")
sketch18.AttachmentSupport = (doc.getObject("XY_Plane"), [""])
sketch18.MapMode = "FlatFace"
sketch18.addGeometry(Part.Circle(Vector(272, 26, 0), Vector(0, 0, 1), 12), False)
sketch18.addConstraint(Sketcher.Constraint("Diameter", 0, 23.6))
sketch18.addConstraint(Sketcher.Constraint("DistanceX", -1, 1, 0, 3, 271.723329))
sketch18.addConstraint(Sketcher.Constraint("DistanceY", -1, 1, 0, 3, 26.147541))
pocket17 = body.newObject("PartDesign::Pocket", "Pocket016")
pocket17.Profile = sketch18
pocket17.Type = "UpToFirst"
pocket17.Reversed = True

sketch19 = body.newObject("Sketcher::SketchObject", "Sketch018")
sketch19.AttachmentSupport = (doc.getObject("XY_Plane"), [""])
sketch19.MapMode = "FlatFace"
sketch19.addGeometry(Part.Circle(Vector(262.2, 38.1, 0), Vector(0, 0, 1), 1.5), False)
sketch19.addConstraint(Sketcher.Constraint("Diameter", 0, 3.0625))
sketch19.addConstraint(Sketcher.Constraint("DistanceX", -1, 1, 0, 3, 262.223329))
sketch19.addConstraint(Sketcher.Constraint("DistanceY", -1, 1, 0, 3, 38.147541))
pocket18 = body.newObject("PartDesign::Pocket", "Pocket017")
pocket18.Profile = sketch19
pocket18.Type = "UpToFirst"
pocket18.Reversed = True

sketch20 = body.newObject("Sketcher::SketchObject", "Sketch019")
sketch20.AttachmentSupport = (doc.getObject("XY_Plane"), [""])
sketch20.MapMode = "FlatFace"
sketch20.addGeometry(Part.Circle(Vector(281.2, 14.1, 0), Vector(0, 0, 1), 1.5), False)
sketch20.addConstraint(Sketcher.Constraint("Diameter", 0, 3.0625))
sketch20.addConstraint(Sketcher.Constraint("DistanceX", -1, 1, 0, 3, 281.223329))
sketch20.addConstraint(Sketcher.Constraint("DistanceY", -1, 1, 0, 3, 14.147541))
pocket19 = body.newObject("PartDesign::Pocket", "Pocket018")
pocket19.Profile = sketch20
pocket19.Type = "UpToFirst"
pocket19.Reversed = True

sketch21 = body.newObject("Sketcher::SketchObject", "Sketch020")
sketch21.AttachmentSupport = (doc.getObject("XY_Plane"), [""])
sketch21.MapMode = "FlatFace"
sketch21.addGeometry(Part.Circle(Vector(259.2, 56.1, 0), Vector(0, 0, 1), 1.6), False)
sketch21.addConstraint(Sketcher.Constraint("Diameter", 0, 3.175))
sketch21.addConstraint(Sketcher.Constraint("DistanceX", -1, 1, 0, 3, 259.228329))
sketch21.addConstraint(Sketcher.Constraint("DistanceY", -1, 1, 0, 3, 56.147541))
pocket20 = body.newObject("PartDesign::Pocket", "Pocket019")
pocket20.Profile = sketch21
pocket20.Type = "UpToFirst"
pocket20.Reversed = True

sketch22 = body.newObject("Sketcher::SketchObject", "Sketch021")
sketch22.AttachmentSupport = (doc.getObject("XY_Plane"), [""])
sketch22.MapMode = "FlatFace"
sketch22.addGeometry(Part.Circle(Vector(284.2, 56.1, 0), Vector(0, 0, 1), 1.6), False)
sketch22.addConstraint(Sketcher.Constraint("Diameter", 0, 3.175))
sketch22.addConstraint(Sketcher.Constraint("DistanceX", -1, 1, 0, 3, 284.218329))
sketch22.addConstraint(Sketcher.Constraint("DistanceY", -1, 1, 0, 3, 56.147541))
pocket21 = body.newObject("PartDesign::Pocket", "Pocket020")
pocket21.Profile = sketch22
pocket21.Type = "UpToFirst"
pocket21.Reversed = True

sketch23 = body.newObject("Sketcher::SketchObject", "Sketch022")
sketch23.AttachmentSupport = (doc.getObject("XY_Plane"), [""])
sketch23.MapMode = "FlatFace"
sketch23.addGeometry(Part.LineSegment(Vector(262, 61, 0), Vector(281, 61, 0)), False)
sketch23.addGeometry(Part.LineSegment(Vector(281, 61, 0), Vector(280, 51, 0)), False)
sketch23.addGeometry(Part.LineSegment(Vector(280, 51, 0), Vector(264, 51, 0)), False)
sketch23.addGeometry(Part.LineSegment(Vector(264, 51, 0), Vector(262, 61, 0)), False)
sketch23.addConstraint(Sketcher.Constraint("Coincident", 0, 2, 1, 1))
sketch23.addConstraint(Sketcher.Constraint("Coincident", 1, 2, 2, 1))
sketch23.addConstraint(Sketcher.Constraint("Coincident", 2, 2, 3, 1))
sketch23.addConstraint(Sketcher.Constraint("Coincident", 3, 2, 0, 1))
sketch23.addConstraint(Sketcher.Constraint("Horizontal", 0))
sketch23.addConstraint(Sketcher.Constraint("Horizontal", 2))
sketch23.addConstraint(Sketcher.Constraint("Equal", 1, 3))
sketch23.addConstraint(Sketcher.Constraint("DistanceX", 0, 1, 0, 2, 19.0))
sketch23.addConstraint(Sketcher.Constraint("DistanceX", 2, 2, 2, 1, 16.0))
sketch23.addConstraint(Sketcher.Constraint("DistanceY", 1, 2, 0, 2, 9.5))
sketch23.addConstraint(Sketcher.Constraint("DistanceX", -1, 1, 0, 2, 281.223329))
sketch23.addConstraint(Sketcher.Constraint("DistanceY", -1, 1, 0, 2, 60.897541))
pocket22 = body.newObject("PartDesign::Pocket", "Pocket021")
pocket22.Profile = sketch23
pocket22.Type = "UpToFirst"
pocket22.Reversed = True
doc.recompute()

fillet = body.newObject("PartDesign::Fillet", "Fillet")
fillet.Base = (pocket22, edges_at(pocket22, [
    (262.223, 60.898, 0.794),
    (263.723, 51.398, 0.794),
    (279.723, 51.398, 0.794),
    (281.223, 60.898, 0.794),
]))
fillet.Radius = 2

doc.recompute()
